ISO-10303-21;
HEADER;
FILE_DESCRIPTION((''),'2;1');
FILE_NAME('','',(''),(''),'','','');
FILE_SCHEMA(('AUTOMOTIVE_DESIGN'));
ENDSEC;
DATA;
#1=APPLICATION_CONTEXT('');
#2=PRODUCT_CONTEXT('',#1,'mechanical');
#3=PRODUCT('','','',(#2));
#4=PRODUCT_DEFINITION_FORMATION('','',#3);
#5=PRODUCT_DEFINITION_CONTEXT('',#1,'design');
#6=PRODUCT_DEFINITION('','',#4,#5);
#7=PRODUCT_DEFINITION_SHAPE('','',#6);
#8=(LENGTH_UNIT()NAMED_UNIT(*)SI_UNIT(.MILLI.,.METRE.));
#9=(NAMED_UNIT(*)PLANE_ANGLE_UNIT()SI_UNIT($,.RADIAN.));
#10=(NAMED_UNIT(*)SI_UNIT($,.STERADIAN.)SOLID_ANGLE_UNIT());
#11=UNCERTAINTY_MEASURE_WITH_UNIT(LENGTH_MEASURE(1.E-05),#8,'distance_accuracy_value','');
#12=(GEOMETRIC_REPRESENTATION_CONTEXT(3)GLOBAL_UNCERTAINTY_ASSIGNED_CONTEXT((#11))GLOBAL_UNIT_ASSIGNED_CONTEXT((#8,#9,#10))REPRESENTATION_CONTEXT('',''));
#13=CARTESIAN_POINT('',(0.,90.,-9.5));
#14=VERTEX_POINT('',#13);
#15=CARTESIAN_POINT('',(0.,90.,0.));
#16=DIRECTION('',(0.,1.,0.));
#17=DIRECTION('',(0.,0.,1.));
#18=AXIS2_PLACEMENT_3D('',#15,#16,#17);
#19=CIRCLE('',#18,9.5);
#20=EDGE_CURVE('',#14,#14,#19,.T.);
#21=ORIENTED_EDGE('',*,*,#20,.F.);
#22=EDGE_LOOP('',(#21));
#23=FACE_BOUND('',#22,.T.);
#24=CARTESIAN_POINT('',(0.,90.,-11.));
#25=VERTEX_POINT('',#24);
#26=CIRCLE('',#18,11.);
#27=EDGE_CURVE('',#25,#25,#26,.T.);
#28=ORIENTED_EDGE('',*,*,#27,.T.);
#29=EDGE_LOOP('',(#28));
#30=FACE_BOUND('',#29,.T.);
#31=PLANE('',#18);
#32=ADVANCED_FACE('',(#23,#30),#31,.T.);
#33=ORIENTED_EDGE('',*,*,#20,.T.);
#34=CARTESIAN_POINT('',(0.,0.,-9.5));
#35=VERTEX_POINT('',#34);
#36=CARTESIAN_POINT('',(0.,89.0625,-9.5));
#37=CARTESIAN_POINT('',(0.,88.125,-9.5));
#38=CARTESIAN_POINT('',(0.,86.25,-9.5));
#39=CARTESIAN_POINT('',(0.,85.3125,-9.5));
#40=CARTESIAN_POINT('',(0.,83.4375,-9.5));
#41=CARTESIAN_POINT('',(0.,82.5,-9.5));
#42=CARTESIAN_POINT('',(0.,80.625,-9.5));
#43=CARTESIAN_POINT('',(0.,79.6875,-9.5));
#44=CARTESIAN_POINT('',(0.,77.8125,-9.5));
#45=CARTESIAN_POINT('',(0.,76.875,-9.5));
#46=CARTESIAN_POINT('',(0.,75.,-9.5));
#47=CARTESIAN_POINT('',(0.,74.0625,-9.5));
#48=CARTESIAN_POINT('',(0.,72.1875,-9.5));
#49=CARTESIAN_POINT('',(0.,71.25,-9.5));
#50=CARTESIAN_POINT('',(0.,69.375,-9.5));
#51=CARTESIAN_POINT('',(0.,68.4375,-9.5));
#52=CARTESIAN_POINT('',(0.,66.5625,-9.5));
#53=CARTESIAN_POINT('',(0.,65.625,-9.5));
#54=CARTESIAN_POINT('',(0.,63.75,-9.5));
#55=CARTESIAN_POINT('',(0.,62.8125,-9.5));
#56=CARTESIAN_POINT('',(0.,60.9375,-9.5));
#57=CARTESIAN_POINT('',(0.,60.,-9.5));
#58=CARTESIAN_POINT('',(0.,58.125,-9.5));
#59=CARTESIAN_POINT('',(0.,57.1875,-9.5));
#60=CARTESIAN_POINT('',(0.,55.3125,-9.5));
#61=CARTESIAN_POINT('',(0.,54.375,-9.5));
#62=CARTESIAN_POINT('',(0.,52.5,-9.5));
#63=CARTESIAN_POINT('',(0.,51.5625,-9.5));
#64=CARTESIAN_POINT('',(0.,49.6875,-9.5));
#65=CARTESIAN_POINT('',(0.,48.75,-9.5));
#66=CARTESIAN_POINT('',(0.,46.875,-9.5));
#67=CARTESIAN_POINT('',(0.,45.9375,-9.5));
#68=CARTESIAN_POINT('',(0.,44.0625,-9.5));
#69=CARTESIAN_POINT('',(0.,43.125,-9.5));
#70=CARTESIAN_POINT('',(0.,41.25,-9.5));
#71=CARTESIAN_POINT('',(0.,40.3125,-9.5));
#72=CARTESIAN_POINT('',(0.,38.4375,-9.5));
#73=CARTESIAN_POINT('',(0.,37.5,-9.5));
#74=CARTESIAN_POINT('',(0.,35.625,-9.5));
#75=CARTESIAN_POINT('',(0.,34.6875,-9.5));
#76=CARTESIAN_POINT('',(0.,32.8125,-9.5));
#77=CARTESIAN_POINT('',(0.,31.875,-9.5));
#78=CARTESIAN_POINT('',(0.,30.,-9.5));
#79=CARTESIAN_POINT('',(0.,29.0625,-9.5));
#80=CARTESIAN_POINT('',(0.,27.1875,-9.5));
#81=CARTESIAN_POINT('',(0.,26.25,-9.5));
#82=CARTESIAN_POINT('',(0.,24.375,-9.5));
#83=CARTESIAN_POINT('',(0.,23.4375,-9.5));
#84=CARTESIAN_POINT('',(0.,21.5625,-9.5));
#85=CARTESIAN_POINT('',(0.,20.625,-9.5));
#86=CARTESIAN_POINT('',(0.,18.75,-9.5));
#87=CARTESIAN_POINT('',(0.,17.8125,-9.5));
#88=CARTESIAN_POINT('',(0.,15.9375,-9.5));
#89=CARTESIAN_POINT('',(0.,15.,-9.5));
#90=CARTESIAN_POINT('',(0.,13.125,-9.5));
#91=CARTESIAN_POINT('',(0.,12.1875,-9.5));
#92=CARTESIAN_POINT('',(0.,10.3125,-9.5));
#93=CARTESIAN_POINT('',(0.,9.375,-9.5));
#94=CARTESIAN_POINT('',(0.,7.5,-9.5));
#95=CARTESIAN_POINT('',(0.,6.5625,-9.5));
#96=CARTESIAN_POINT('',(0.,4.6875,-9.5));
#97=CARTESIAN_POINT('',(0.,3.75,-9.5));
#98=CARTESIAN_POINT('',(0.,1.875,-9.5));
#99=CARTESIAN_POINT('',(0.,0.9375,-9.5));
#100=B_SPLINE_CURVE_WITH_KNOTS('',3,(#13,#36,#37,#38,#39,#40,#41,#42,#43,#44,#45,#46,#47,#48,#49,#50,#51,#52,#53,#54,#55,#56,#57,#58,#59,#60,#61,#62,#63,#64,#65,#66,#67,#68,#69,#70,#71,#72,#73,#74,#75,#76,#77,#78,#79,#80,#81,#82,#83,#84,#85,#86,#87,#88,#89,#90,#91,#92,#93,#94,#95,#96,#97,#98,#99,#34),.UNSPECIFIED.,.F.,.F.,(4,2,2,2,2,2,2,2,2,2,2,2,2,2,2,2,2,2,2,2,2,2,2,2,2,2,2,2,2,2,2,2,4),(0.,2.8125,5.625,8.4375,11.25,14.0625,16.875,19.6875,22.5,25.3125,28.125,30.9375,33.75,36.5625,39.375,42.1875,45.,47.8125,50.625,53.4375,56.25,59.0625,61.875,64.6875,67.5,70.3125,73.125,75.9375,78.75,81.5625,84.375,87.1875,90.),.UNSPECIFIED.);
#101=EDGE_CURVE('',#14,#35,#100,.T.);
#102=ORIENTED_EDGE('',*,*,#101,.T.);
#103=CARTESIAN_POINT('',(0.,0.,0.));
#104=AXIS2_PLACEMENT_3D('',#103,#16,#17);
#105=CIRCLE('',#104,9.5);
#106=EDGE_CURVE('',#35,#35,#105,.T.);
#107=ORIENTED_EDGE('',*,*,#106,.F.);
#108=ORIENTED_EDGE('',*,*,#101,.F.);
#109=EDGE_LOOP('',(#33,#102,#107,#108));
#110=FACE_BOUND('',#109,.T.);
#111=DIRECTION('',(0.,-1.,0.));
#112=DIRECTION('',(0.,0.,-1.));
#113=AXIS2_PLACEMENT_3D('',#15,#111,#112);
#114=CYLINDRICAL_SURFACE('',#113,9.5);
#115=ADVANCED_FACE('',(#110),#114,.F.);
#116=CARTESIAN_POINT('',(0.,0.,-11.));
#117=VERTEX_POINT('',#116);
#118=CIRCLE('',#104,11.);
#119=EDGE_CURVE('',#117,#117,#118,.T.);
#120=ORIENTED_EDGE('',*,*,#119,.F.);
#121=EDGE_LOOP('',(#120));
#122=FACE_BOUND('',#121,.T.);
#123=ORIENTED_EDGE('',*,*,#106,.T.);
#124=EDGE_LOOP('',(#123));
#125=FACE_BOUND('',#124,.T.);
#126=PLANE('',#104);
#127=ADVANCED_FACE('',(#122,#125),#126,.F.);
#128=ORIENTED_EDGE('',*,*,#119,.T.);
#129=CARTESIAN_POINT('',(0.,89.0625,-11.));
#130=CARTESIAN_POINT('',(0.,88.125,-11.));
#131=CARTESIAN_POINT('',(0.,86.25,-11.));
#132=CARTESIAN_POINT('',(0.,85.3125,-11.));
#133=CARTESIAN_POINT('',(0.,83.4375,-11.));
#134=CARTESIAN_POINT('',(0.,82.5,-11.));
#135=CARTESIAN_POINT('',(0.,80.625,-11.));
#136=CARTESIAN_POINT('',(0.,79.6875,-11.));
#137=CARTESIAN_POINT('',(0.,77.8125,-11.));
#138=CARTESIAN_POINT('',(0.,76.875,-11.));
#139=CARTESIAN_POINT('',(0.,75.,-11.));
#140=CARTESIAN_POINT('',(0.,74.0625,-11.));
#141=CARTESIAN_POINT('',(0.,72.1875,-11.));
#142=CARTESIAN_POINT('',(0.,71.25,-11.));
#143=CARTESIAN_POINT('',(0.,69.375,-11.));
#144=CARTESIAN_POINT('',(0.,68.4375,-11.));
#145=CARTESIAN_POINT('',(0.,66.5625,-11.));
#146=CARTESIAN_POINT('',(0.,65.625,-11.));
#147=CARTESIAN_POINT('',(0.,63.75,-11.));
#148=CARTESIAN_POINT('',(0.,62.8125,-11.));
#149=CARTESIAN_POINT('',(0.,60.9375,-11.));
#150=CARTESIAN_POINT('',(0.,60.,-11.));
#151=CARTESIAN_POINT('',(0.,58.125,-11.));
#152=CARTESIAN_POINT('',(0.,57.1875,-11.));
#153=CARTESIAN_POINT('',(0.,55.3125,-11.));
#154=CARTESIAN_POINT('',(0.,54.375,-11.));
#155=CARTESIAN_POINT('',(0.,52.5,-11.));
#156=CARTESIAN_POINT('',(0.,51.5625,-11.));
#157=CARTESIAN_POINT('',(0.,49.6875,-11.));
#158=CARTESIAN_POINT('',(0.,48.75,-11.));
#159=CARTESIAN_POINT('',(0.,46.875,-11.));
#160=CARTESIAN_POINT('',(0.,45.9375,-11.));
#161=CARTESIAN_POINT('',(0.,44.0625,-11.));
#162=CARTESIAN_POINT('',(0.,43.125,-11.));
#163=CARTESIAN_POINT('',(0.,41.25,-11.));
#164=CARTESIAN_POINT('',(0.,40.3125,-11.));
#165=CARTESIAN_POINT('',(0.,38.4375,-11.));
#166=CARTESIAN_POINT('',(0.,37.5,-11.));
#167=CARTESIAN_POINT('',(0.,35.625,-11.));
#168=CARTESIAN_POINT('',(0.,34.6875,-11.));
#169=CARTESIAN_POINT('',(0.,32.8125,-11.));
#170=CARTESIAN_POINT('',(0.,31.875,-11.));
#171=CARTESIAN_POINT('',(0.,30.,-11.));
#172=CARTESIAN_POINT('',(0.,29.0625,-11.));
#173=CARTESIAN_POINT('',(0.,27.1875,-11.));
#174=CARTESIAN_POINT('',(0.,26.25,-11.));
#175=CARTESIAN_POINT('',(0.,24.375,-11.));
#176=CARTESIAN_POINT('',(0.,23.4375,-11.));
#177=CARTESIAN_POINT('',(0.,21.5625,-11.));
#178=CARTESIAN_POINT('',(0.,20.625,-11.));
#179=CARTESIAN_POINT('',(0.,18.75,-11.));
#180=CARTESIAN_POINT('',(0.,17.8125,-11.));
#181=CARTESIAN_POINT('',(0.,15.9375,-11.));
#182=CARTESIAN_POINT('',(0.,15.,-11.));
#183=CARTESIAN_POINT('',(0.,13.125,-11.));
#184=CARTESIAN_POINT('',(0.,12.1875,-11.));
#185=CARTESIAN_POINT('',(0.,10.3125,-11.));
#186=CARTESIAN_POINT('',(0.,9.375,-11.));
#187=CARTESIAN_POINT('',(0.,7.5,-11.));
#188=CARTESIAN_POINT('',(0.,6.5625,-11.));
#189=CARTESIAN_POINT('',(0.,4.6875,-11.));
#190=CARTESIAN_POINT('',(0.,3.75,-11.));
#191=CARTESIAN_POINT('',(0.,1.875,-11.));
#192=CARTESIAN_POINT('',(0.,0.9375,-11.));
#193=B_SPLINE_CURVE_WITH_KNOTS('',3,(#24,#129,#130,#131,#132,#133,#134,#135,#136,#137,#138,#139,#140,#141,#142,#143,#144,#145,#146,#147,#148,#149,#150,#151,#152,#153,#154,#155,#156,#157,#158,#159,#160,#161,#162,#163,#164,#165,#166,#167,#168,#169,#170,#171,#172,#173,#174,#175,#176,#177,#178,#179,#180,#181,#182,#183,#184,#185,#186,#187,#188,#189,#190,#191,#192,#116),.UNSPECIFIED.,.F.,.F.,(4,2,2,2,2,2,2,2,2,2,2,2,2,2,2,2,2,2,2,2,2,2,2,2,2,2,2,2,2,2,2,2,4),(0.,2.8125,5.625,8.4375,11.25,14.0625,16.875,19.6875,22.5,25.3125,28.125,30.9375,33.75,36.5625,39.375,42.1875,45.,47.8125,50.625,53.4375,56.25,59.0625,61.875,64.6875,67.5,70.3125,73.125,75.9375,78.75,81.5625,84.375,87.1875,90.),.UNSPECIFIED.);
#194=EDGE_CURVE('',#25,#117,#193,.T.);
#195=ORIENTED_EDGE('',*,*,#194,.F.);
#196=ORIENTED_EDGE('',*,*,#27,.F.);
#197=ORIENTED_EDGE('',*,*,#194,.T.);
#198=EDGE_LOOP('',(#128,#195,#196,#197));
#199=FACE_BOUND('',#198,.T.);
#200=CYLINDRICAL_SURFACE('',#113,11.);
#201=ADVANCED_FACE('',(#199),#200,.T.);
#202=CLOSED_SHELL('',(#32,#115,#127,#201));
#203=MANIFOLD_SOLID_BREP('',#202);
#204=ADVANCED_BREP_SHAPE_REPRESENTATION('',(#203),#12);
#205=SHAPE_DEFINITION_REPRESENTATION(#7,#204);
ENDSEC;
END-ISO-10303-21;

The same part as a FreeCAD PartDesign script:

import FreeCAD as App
import Part
import Sketcher
Q = App.Units.Quantity

doc = App.newDocument("Part")
body = doc.addObject("PartDesign::Body", "Body")

# Sketch on XZ plane
sketch1 = body.newObject("Sketcher::SketchObject", "Sketch")
sketch1.AttachmentSupport = (doc.getObject("XZ_Plane"), [""])
sketch1.MapMode = "FlatFace"
sketch1.addGeometry([
    Part.Circle(App.Vector(0, 0, 0), App.Vector(0, 0, 1), 11),
    Part.Circle(App.Vector(0, 0, 0), App.Vector(0, 0, 1), 10),
], False)
sketch1.addConstraint([
    Sketcher.Constraint("Coincident", 0, 3, -1, 1),
    Sketcher.Constraint("Coincident", 1, 3, -1, 1),
    Sketcher.Constraint("Diameter", 0, Q("22 mm")),
    Sketcher.Constraint("Diameter", 1, Q("19 mm")),
])
pad1 = body.newObject("PartDesign::Pad", "Pad")
pad1.Profile = sketch1
pad1.Length = 90
pad1.Reversed = True

doc.recompute()
